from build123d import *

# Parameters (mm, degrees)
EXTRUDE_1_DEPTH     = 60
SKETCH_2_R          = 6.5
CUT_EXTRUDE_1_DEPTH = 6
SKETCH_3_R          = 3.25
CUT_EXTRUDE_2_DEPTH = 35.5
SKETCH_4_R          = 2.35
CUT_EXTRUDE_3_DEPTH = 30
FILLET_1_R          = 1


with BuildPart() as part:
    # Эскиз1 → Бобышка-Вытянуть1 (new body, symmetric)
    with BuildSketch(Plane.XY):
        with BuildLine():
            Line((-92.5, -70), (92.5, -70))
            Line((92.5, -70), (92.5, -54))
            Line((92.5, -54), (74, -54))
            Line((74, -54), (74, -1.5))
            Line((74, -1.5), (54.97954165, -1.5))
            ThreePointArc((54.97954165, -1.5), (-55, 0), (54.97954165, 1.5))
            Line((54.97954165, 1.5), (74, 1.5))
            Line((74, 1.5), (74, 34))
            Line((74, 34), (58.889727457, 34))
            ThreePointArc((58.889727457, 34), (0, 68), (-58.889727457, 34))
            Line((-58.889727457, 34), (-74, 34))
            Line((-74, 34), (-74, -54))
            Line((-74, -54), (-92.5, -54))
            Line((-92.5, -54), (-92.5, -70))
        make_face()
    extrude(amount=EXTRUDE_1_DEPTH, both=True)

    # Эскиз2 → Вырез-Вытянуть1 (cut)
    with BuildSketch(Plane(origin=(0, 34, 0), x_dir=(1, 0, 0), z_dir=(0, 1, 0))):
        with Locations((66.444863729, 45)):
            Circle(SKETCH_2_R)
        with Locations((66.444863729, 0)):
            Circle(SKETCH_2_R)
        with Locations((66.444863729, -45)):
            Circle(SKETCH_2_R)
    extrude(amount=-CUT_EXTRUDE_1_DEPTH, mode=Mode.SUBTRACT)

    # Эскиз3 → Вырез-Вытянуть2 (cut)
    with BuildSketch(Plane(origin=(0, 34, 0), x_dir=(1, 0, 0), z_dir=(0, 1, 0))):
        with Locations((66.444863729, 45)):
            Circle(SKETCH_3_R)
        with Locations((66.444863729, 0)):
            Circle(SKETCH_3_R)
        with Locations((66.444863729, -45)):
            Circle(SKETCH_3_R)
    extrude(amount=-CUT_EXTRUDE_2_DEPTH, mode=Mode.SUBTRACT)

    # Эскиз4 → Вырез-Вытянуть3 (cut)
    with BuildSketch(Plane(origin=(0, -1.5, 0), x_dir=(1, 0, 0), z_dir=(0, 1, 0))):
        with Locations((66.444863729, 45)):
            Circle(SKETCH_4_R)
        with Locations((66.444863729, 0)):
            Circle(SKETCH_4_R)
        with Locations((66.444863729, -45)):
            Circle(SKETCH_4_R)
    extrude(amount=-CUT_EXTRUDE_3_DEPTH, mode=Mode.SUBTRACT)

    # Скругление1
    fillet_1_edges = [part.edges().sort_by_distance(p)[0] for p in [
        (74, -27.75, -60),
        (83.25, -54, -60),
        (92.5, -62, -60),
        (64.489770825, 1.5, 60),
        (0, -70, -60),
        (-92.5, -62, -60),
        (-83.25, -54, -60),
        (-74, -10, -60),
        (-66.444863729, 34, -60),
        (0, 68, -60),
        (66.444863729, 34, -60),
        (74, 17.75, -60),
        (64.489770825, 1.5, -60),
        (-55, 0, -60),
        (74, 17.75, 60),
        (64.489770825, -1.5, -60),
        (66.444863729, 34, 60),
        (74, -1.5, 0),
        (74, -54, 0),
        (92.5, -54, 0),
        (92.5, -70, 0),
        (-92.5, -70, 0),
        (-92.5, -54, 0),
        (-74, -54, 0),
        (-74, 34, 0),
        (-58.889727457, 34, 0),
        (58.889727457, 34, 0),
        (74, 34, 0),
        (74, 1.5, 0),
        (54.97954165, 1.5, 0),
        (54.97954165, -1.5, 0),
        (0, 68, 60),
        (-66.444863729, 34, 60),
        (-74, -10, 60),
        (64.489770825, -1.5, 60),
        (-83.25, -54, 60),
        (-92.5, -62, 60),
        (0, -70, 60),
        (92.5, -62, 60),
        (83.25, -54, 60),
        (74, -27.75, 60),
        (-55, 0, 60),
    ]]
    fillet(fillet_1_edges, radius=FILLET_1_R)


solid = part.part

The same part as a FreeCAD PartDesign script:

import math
import FreeCAD as App
import Part
import Sketcher
from FreeCAD import Vector
Q = App.Units.Quantity


def edges_at(feature, points):
    """Names of the edges that pass closest to the given points."""
    edges = feature.Shape.Edges
    near = lambda p: min(range(len(edges)), key=lambda i: edges[i].distToShape(Part.Vertex(*p))[0])
    return sorted({f"Edge{near(p) + 1}" for p in points})

doc = App.newDocument("Part")
body = doc.addObject("PartDesign::Body", "Body")

# Sketch on XY plane
sketch1 = body.newObject("Sketcher::SketchObject", "Sketch")
sketch1.AttachmentSupport = (doc.getObject("XY_Plane"), [""])
sketch1.MapMode = "FlatFace"
sketch1.addGeometry([
    Part.LineSegment(Vector(-92.5, -70, 0), Vector(92.5, -70, 0)),  # 0
    Part.LineSegment(Vector(92.5, -70, 0), Vector(92.5, -54, 0)),  # 1
    Part.LineSegment(Vector(92.5, -54, 0), Vector(74, -54, 0)),  # 2
    Part.LineSegment(Vector(74, -54, 0), Vector(74, -1.5, 0)),  # 3
    Part.LineSegment(Vector(74, -1.5, 0), Vector(55, -1.5, 0)),  # 4
    Part.ArcOfCircle(Part.Circle(Vector(0, 0, 0), Vector(0, 0, 1), 55), math.radians(2), math.radians(358)),  # 5
    Part.LineSegment(Vector(55, 1.5, 0), Vector(74, 1.5, 0)),  # 6
    Part.LineSegment(Vector(74, 1.5, 0), Vector(74, 34, 0)),  # 7
    Part.LineSegment(Vector(74, 34, 0), Vector(58.9, 34, 0)),  # 8
    Part.ArcOfCircle(Part.Circle(Vector(0, 0, 0), Vector(0, 0, 1), 68), math.radians(30), math.radians(150)),  # 9
    Part.LineSegment(Vector(-58.9, 34, 0), Vector(-74, 34, 0)),  # 10
    Part.LineSegment(Vector(-74, 34, 0), Vector(-74, -54, 0)),  # 11
    Part.LineSegment(Vector(-74, -54, 0), Vector(-92.5, -54, 0)),  # 12
    Part.LineSegment(Vector(-92.5, -54, 0), Vector(-92.5, -70, 0)),  # 13
], False)
sketch1.addConstraint([
    Sketcher.Constraint("Coincident", 0, 2, 1, 1),
    Sketcher.Constraint("Coincident", 1, 2, 2, 1),
    Sketcher.Constraint("Coincident", 2, 2, 3, 1),
    Sketcher.Constraint("Coincident", 3, 2, 4, 1),
    Sketcher.Constraint("Coincident", 4, 2, 5, 2),
    Sketcher.Constraint("Coincident", 5, 1, 6, 1),
    Sketcher.Constraint("Coincident", 6, 2, 7, 1),
    Sketcher.Constraint("Coincident", 7, 2, 8, 1),
    Sketcher.Constraint("Coincident", 8, 2, 9, 1),
    Sketcher.Constraint("Coincident", 9, 2, 10, 1),
    Sketcher.Constraint("Coincident", 10, 2, 11, 1),
    Sketcher.Constraint("Coincident", 11, 2, 12, 1),
    Sketcher.Constraint("Coincident", 12, 2, 13, 1),
    Sketcher.Constraint("Coincident", 13, 2, 0, 1),
    Sketcher.Constraint("Horizontal", 0),
    Sketcher.Constraint("Vertical", 1),
    Sketcher.Constraint("Horizontal", 2),
    Sketcher.Constraint("Vertical", 3),
    Sketcher.Constraint("Horizontal", 4),
    Sketcher.Constraint("Horizontal", 6),
    Sketcher.Constraint("Vertical", 7),
    Sketcher.Constraint("Horizontal", 8),
    Sketcher.Constraint("Horizontal", 10),
    Sketcher.Constraint("Vertical", 11),
    Sketcher.Constraint("Horizontal", 12),
    Sketcher.Constraint("Vertical", 13),
    Sketcher.Constraint("Coincident", 5, 3, -1, 1),
    Sketcher.Constraint("Coincident", 9, 3, -1, 1),
    Sketcher.Constraint("Symmetric", 7, 2, 10, 2, -2),
    Sketcher.Constraint("Symmetric", 2, 2, 11, 2, -2),
    Sketcher.Constraint("Vertical", 4, 2, 5, 1),
    Sketcher.Constraint("Equal", 2, 12),
    Sketcher.Constraint("Radius", 5, Q("55 mm")),
    Sketcher.Constraint("Radius", 9, Q("68 mm")),
    Sketcher.Constraint("DistanceX", 0, 1, 0, 2, Q("185 mm")),
    Sketcher.Constraint("DistanceY", 1, 1, 1, 2, Q("16 mm")),
    Sketcher.Constraint("DistanceY", 11, 2, 11, 1, Q("88 mm")),
    Sketcher.Constraint("DistanceX", 2, 2, 2, 1, Q("18.5 mm")),
    Sketcher.Constraint("DistanceY", 3, 1, 3, 2, Q("52.5 mm")),
    Sketcher.Constraint("DistanceY", 7, 1, 7, 2, Q("32.5 mm")),
])
pad1 = body.newObject("PartDesign::Pad", "Pad")
pad1.Profile = sketch1
pad1.Length = 120
pad1.Midplane = True

# Sketch on XZ plane
sketch2 = body.newObject("Sketcher::SketchObject", "Sketch001")
sketch2.AttachmentSupport = (doc.getObject("XZ_Plane"), [""])
sketch2.MapMode = "FlatFace"
sketch2.AttachmentOffset = App.Placement(Vector(0, 0, -34), App.Rotation())
sketch2.addGeometry([
    Part.Circle(Vector(66, -45, 0), Vector(0, 0, 1), 6),
    Part.Circle(Vector(66, 0, 0), Vector(0, 0, 1), 6),
    Part.Circle(Vector(66, 45, 0), Vector(0, 0, 1), 6),
], False)
sketch2.addConstraint([
    Sketcher.Constraint("Equal", 0, 1),
    Sketcher.Constraint("Equal", 1, 2),
    Sketcher.Constraint("Symmetric", 0, 3, 2, 3, -1),
    Sketcher.Constraint("PointOnObject", 1, 3, -1),
    Sketcher.Constraint("Vertical", 0, 3, 1, 3),
    Sketcher.Constraint("Diameter", 0, Q("13 mm")),
    Sketcher.Constraint("DistanceY", 0, 3, -1, 1, Q("45 mm")),
    Sketcher.Constraint("DistanceX", -1, 1, 0, 3, Q("66.444864 mm")),
])
pocket1 = body.newObject("PartDesign::Pocket", "Pocket")
pocket1.Profile = sketch2
pocket1.Length = 6
pocket1.Reversed = True

# Sketch on XZ plane
sketch3 = body.newObject("Sketcher::SketchObject", "Sketch002")
sketch3.AttachmentSupport = (doc.getObject("XZ_Plane"), [""])
sketch3.MapMode = "FlatFace"
sketch3.AttachmentOffset = App.Placement(Vector(0, 0, -34), App.Rotation())
sketch3.addGeometry([
    Part.Circle(Vector(66.4, -45, 0), Vector(0, 0, 1), 3.2),
    Part.Circle(Vector(66.4, 0, 0), Vector(0, 0, 1), 3.2),
    Part.Circle(Vector(66.4, 45, 0), Vector(0, 0, 1), 3.2),
], False)
sketch3.addConstraint([
    Sketcher.Constraint("Equal", 0, 1),
    Sketcher.Constraint("Equal", 1, 2),
    Sketcher.Constraint("Symmetric", 0, 3, 2, 3, -1),
    Sketcher.Constraint("PointOnObject", 1, 3, -1),
    Sketcher.Constraint("Vertical", 0, 3, 1, 3),
    Sketcher.Constraint("Diameter", 0, Q("6.5 mm")),
    Sketcher.Constraint("DistanceY", 0, 3, -1, 1, Q("45 mm")),
    Sketcher.Constraint("DistanceX", -1, 1, 0, 3, Q("66.444864 mm")),
])
pocket2 = body.newObject("PartDesign::Pocket", "Pocket001")
pocket2.Profile = sketch3
pocket2.Length = 35.5
pocket2.Reversed = True

# Sketch on XZ plane
sketch4 = body.newObject("Sketcher::SketchObject", "Sketch003")
sketch4.AttachmentSupport = (doc.getObject("XZ_Plane"), [""])
sketch4.MapMode = "FlatFace"
sketch4.AttachmentOffset = App.Placement(Vector(0, 0, 1.5), App.Rotation())
sketch4.addGeometry([
    Part.Circle(Vector(66.4, -45, 0), Vector(0, 0, 1), 2.4),
    Part.Circle(Vector(66.4, 0, 0), Vector(0, 0, 1), 2.4),
    Part.Circle(Vector(66.4, 45, 0), Vector(0, 0, 1), 2.4),
], False)
sketch4.addConstraint([
    Sketcher.Constraint("Equal", 0, 1),
    Sketcher.Constraint("Equal", 1, 2),
    Sketcher.Constraint("Symmetric", 0, 3, 2, 3, -1),
    Sketcher.Constraint("PointOnObject", 1, 3, -1),
    Sketcher.Constraint("Vertical", 0, 3, 1, 3),
    Sketcher.Constraint("Diameter", 0, Q("4.7 mm")),
    Sketcher.Constraint("DistanceY", 0, 3, -1, 1, Q("45 mm")),
    Sketcher.Constraint("DistanceX", -1, 1, 0, 3, Q("66.444864 mm")),
])
pocket3 = body.newObject("PartDesign::Pocket", "Pocket002")
pocket3.Profile = sketch4
pocket3.Length = 30
pocket3.Reversed = True
doc.recompute()

fillet = body.newObject("PartDesign::Fillet", "Fillet")
fillet.Base = (pocket3, edges_at(pocket3, [
    (74, -27.75, -60),
    (83.25, -54, -60),
    (92.5, -62, -60),
    (64.49, 1.5, 60),
    (0, -70, -60),
    (-92.5, -62, -60),
    (-83.25, -54, -60),
    (-74, -10, -60),
    (-66.445, 34, -60),
    (0, 68, -60),
    (66.445, 34, -60),
    (74, 17.75, -60),
    (64.49, 1.5, -60),
    (-55, 0, -60),
    (74, 17.75, 60),
    (64.49, -1.5, -60),
    (66.445, 34, 60),
    (74, -1.5, 0),
    (74, -54, 0),
    (92.5, -54, 0),
    (92.5, -70, 0),
    (-92.5, -70, 0),
    (-92.5, -54, 0),
    (-74, -54, 0),
    (-74, 34, 0),
    (-58.89, 34, 0),
    (58.89, 34, 0),
    (74, 34, 0),
    (74, 1.5, 0),
    (54.98, 1.5, 0),
    (54.98, -1.5, 0),
    (0, 68, 60),
    (-66.445, 34, 60),
    (-74, -10, 60),
    (64.49, -1.5, 60),
    (-83.25, -54, 60),
    (-92.5, -62, 60),
    (0, -70, 60),
    (92.5, -62, 60),
    (83.25, -54, 60),
    (74, -27.75, 60),
    (-55, 0, 60),
]))
fillet.Radius = 1

doc.recompute()
